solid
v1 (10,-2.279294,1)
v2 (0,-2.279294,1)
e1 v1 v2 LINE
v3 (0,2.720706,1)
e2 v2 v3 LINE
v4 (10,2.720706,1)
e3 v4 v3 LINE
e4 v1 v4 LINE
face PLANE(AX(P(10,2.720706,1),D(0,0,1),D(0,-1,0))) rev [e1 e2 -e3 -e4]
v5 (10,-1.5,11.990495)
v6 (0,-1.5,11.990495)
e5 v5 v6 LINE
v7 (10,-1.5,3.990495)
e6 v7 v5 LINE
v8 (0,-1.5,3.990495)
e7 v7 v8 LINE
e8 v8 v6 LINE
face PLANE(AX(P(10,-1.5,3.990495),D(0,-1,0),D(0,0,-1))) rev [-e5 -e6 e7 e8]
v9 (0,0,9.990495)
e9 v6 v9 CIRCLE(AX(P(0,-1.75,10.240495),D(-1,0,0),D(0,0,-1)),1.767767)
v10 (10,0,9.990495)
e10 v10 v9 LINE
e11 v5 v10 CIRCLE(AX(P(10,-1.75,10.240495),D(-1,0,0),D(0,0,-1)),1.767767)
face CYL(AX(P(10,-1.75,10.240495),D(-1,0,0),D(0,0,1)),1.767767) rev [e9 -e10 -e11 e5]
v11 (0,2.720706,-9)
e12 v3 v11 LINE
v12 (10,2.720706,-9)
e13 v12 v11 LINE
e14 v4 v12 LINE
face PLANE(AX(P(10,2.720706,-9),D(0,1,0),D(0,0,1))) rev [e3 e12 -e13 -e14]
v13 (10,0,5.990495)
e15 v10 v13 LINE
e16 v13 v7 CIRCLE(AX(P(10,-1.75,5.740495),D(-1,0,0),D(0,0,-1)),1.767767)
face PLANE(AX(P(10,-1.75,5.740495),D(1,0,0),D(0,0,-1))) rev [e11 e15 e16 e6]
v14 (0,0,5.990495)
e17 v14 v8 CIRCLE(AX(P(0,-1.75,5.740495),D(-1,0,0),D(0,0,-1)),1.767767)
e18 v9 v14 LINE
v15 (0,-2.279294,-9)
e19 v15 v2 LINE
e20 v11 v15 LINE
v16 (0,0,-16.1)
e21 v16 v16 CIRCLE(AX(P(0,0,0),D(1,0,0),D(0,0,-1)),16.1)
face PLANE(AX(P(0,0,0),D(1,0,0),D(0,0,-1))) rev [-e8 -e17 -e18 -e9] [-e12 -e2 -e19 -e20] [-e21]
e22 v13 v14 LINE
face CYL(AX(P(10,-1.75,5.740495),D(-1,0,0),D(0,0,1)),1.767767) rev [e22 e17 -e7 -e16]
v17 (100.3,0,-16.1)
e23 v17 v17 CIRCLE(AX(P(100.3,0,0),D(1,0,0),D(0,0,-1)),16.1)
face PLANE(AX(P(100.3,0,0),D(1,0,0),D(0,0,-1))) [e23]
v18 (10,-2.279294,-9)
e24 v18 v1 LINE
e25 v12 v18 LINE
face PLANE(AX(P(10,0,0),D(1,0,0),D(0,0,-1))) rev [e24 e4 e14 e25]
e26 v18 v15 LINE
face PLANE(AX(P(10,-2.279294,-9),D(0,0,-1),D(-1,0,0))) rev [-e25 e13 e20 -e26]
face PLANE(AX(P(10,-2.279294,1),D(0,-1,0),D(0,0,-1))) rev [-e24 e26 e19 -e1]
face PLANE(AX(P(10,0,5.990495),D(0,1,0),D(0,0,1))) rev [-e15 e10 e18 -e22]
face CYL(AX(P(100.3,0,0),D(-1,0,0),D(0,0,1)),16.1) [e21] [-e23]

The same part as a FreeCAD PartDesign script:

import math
import FreeCAD as App
import Part
import Sketcher

V = App.Vector

doc = App.newDocument("Part")
body = doc.addObject("PartDesign::Body", "Body")

sketch1 = doc.addObject("Sketcher::SketchObject", "Sketch")
body.addObject(sketch1)
sketch1.AttachmentSupport = (doc.YZ_Plane, [""])
sketch1.MapMode = "FlatFace"
sketch1.addGeometry(Part.Circle(V(0, 0, 0), V(0, 0, 1), 16), False)
sketch1.addConstraint(Sketcher.Constraint("Coincident", 0, 3, -1, 1))
sketch1.addConstraint(Sketcher.Constraint("Diameter", 0, 32.2))
pad1 = doc.addObject("PartDesign::Pad", "Pad")
body.addObject(pad1)
pad1.Profile = sketch1
pad1.Length = 100.3

sketch2 = doc.addObject("Sketcher::SketchObject", "Sketch001")
body.addObject(sketch2)
sketch2.AttachmentSupport = (doc.YZ_Plane, [""])
sketch2.MapMode = "FlatFace"
sketch2.addGeometry(Part.LineSegment(V(3, -9, 0), V(-2, -9, 0)), False)
sketch2.addGeometry(Part.LineSegment(V(-2, -9, 0), V(-2, 1, 0)), False)
sketch2.addGeometry(Part.LineSegment(V(-2, 1, 0), V(3, 1, 0)), False)
sketch2.addGeometry(Part.LineSegment(V(3, 1, 0), V(3, -9, 0)), False)
sketch2.addConstraint(Sketcher.Constraint("Coincident", 0, 2, 1, 1))
sketch2.addConstraint(Sketcher.Constraint("Coincident", 1, 2, 2, 1))
sketch2.addConstraint(Sketcher.Constraint("Coincident", 2, 2, 3, 1))
sketch2.addConstraint(Sketcher.Constraint("Coincident", 3, 2, 0, 1))
sketch2.addConstraint(Sketcher.Constraint("Horizontal", 0))
sketch2.addConstraint(Sketcher.Constraint("Vertical", 1))
sketch2.addConstraint(Sketcher.Constraint("Horizontal", 2))
sketch2.addConstraint(Sketcher.Constraint("Vertical", 3))
sketch2.addConstraint(Sketcher.Constraint("DistanceX", 0, 2, 0, 1, 5.0))
sketch2.addConstraint(Sketcher.Constraint("DistanceY", 1, 1, 1, 2, 10.0))
sketch2.addConstraint(Sketcher.Constraint("DistanceY", 0, 2, -1, 1, 9.0))
sketch2.addConstraint(Sketcher.Constraint("DistanceX", 0, 2, -1, 1, 2.279294))
pocket1 = doc.addObject("PartDesign::Pocket", "Pocket")
body.addObject(pocket1)
pocket1.Profile = sketch2
pocket1.Length = 10
pocket1.Reversed = True

sketch3 = doc.addObject("Sketcher::SketchObject", "Sketch002")
body.addObject(sketch3)
sketch3.AttachmentSupport = (doc.YZ_Plane, [""])
sketch3.MapMode = "FlatFace"
sketch3.addGeometry(Part.LineSegment(V(-1.5, 4, 0), V(-1.5, 12, 0)), False)
sketch3.addGeometry(Part.ArcOfCircle(Part.Circle(V(-1.8, 10.2, 0), V(0, 0, 1), 1.8), math.radians(-8), math.radians(82)), False)
sketch3.addGeometry(Part.LineSegment(V(0, 10, 0), V(0, 6, 0)), False)
sketch3.addGeometry(Part.ArcOfCircle(Part.Circle(V(-1.8, 5.7, 0), V(0, 0, 1), 1.8), math.radians(-82), math.radians(8)), False)
sketch3.addConstraint(Sketcher.Constraint("Coincident", 0, 2, 1, 2))
sketch3.addConstraint(Sketcher.Constraint("Coincident", 1, 1, 2, 1))
sketch3.addConstraint(Sketcher.Constraint("Coincident", 2, 2, 3, 2))
sketch3.addConstraint(Sketcher.Constraint("Coincident", 3, 1, 0, 1))
sketch3.addConstraint(Sketcher.Constraint("Vertical", 0))
sketch3.addConstraint(Sketcher.Constraint("Vertical", 2))
sketch3.addConstraint(Sketcher.Constraint("Equal", 1, 3))
sketch3.addConstraint(Sketcher.Constraint("PointOnObject", 1, 1, -2))
sketch3.addConstraint(Sketcher.Constraint("Vertical", 1, 3, 3, 3))
sketch3.addConstraint(Sketcher.Constraint("DistanceY", 0, 1, 0, 2, 8.0))
sketch3.addConstraint(Sketcher.Constraint("DistanceY", 2, 2, 2, 1, 4.0))
sketch3.addConstraint(Sketcher.Constraint("DistanceX", 0, 2, -1, 1, 1.5))
sketch3.addConstraint(Sketcher.Constraint("DistanceY", 3, 3, 1, 3, 4.5))
sketch3.addConstraint(Sketcher.Constraint("DistanceY", -1, 1, 1, 3, 10.240495))
pocket2 = doc.addObject("PartDesign::Pocket", "Pocket001")
body.addObject(pocket2)
pocket2.Profile = sketch3
pocket2.Length = 10
pocket2.Reversed = True

doc.recompute()
